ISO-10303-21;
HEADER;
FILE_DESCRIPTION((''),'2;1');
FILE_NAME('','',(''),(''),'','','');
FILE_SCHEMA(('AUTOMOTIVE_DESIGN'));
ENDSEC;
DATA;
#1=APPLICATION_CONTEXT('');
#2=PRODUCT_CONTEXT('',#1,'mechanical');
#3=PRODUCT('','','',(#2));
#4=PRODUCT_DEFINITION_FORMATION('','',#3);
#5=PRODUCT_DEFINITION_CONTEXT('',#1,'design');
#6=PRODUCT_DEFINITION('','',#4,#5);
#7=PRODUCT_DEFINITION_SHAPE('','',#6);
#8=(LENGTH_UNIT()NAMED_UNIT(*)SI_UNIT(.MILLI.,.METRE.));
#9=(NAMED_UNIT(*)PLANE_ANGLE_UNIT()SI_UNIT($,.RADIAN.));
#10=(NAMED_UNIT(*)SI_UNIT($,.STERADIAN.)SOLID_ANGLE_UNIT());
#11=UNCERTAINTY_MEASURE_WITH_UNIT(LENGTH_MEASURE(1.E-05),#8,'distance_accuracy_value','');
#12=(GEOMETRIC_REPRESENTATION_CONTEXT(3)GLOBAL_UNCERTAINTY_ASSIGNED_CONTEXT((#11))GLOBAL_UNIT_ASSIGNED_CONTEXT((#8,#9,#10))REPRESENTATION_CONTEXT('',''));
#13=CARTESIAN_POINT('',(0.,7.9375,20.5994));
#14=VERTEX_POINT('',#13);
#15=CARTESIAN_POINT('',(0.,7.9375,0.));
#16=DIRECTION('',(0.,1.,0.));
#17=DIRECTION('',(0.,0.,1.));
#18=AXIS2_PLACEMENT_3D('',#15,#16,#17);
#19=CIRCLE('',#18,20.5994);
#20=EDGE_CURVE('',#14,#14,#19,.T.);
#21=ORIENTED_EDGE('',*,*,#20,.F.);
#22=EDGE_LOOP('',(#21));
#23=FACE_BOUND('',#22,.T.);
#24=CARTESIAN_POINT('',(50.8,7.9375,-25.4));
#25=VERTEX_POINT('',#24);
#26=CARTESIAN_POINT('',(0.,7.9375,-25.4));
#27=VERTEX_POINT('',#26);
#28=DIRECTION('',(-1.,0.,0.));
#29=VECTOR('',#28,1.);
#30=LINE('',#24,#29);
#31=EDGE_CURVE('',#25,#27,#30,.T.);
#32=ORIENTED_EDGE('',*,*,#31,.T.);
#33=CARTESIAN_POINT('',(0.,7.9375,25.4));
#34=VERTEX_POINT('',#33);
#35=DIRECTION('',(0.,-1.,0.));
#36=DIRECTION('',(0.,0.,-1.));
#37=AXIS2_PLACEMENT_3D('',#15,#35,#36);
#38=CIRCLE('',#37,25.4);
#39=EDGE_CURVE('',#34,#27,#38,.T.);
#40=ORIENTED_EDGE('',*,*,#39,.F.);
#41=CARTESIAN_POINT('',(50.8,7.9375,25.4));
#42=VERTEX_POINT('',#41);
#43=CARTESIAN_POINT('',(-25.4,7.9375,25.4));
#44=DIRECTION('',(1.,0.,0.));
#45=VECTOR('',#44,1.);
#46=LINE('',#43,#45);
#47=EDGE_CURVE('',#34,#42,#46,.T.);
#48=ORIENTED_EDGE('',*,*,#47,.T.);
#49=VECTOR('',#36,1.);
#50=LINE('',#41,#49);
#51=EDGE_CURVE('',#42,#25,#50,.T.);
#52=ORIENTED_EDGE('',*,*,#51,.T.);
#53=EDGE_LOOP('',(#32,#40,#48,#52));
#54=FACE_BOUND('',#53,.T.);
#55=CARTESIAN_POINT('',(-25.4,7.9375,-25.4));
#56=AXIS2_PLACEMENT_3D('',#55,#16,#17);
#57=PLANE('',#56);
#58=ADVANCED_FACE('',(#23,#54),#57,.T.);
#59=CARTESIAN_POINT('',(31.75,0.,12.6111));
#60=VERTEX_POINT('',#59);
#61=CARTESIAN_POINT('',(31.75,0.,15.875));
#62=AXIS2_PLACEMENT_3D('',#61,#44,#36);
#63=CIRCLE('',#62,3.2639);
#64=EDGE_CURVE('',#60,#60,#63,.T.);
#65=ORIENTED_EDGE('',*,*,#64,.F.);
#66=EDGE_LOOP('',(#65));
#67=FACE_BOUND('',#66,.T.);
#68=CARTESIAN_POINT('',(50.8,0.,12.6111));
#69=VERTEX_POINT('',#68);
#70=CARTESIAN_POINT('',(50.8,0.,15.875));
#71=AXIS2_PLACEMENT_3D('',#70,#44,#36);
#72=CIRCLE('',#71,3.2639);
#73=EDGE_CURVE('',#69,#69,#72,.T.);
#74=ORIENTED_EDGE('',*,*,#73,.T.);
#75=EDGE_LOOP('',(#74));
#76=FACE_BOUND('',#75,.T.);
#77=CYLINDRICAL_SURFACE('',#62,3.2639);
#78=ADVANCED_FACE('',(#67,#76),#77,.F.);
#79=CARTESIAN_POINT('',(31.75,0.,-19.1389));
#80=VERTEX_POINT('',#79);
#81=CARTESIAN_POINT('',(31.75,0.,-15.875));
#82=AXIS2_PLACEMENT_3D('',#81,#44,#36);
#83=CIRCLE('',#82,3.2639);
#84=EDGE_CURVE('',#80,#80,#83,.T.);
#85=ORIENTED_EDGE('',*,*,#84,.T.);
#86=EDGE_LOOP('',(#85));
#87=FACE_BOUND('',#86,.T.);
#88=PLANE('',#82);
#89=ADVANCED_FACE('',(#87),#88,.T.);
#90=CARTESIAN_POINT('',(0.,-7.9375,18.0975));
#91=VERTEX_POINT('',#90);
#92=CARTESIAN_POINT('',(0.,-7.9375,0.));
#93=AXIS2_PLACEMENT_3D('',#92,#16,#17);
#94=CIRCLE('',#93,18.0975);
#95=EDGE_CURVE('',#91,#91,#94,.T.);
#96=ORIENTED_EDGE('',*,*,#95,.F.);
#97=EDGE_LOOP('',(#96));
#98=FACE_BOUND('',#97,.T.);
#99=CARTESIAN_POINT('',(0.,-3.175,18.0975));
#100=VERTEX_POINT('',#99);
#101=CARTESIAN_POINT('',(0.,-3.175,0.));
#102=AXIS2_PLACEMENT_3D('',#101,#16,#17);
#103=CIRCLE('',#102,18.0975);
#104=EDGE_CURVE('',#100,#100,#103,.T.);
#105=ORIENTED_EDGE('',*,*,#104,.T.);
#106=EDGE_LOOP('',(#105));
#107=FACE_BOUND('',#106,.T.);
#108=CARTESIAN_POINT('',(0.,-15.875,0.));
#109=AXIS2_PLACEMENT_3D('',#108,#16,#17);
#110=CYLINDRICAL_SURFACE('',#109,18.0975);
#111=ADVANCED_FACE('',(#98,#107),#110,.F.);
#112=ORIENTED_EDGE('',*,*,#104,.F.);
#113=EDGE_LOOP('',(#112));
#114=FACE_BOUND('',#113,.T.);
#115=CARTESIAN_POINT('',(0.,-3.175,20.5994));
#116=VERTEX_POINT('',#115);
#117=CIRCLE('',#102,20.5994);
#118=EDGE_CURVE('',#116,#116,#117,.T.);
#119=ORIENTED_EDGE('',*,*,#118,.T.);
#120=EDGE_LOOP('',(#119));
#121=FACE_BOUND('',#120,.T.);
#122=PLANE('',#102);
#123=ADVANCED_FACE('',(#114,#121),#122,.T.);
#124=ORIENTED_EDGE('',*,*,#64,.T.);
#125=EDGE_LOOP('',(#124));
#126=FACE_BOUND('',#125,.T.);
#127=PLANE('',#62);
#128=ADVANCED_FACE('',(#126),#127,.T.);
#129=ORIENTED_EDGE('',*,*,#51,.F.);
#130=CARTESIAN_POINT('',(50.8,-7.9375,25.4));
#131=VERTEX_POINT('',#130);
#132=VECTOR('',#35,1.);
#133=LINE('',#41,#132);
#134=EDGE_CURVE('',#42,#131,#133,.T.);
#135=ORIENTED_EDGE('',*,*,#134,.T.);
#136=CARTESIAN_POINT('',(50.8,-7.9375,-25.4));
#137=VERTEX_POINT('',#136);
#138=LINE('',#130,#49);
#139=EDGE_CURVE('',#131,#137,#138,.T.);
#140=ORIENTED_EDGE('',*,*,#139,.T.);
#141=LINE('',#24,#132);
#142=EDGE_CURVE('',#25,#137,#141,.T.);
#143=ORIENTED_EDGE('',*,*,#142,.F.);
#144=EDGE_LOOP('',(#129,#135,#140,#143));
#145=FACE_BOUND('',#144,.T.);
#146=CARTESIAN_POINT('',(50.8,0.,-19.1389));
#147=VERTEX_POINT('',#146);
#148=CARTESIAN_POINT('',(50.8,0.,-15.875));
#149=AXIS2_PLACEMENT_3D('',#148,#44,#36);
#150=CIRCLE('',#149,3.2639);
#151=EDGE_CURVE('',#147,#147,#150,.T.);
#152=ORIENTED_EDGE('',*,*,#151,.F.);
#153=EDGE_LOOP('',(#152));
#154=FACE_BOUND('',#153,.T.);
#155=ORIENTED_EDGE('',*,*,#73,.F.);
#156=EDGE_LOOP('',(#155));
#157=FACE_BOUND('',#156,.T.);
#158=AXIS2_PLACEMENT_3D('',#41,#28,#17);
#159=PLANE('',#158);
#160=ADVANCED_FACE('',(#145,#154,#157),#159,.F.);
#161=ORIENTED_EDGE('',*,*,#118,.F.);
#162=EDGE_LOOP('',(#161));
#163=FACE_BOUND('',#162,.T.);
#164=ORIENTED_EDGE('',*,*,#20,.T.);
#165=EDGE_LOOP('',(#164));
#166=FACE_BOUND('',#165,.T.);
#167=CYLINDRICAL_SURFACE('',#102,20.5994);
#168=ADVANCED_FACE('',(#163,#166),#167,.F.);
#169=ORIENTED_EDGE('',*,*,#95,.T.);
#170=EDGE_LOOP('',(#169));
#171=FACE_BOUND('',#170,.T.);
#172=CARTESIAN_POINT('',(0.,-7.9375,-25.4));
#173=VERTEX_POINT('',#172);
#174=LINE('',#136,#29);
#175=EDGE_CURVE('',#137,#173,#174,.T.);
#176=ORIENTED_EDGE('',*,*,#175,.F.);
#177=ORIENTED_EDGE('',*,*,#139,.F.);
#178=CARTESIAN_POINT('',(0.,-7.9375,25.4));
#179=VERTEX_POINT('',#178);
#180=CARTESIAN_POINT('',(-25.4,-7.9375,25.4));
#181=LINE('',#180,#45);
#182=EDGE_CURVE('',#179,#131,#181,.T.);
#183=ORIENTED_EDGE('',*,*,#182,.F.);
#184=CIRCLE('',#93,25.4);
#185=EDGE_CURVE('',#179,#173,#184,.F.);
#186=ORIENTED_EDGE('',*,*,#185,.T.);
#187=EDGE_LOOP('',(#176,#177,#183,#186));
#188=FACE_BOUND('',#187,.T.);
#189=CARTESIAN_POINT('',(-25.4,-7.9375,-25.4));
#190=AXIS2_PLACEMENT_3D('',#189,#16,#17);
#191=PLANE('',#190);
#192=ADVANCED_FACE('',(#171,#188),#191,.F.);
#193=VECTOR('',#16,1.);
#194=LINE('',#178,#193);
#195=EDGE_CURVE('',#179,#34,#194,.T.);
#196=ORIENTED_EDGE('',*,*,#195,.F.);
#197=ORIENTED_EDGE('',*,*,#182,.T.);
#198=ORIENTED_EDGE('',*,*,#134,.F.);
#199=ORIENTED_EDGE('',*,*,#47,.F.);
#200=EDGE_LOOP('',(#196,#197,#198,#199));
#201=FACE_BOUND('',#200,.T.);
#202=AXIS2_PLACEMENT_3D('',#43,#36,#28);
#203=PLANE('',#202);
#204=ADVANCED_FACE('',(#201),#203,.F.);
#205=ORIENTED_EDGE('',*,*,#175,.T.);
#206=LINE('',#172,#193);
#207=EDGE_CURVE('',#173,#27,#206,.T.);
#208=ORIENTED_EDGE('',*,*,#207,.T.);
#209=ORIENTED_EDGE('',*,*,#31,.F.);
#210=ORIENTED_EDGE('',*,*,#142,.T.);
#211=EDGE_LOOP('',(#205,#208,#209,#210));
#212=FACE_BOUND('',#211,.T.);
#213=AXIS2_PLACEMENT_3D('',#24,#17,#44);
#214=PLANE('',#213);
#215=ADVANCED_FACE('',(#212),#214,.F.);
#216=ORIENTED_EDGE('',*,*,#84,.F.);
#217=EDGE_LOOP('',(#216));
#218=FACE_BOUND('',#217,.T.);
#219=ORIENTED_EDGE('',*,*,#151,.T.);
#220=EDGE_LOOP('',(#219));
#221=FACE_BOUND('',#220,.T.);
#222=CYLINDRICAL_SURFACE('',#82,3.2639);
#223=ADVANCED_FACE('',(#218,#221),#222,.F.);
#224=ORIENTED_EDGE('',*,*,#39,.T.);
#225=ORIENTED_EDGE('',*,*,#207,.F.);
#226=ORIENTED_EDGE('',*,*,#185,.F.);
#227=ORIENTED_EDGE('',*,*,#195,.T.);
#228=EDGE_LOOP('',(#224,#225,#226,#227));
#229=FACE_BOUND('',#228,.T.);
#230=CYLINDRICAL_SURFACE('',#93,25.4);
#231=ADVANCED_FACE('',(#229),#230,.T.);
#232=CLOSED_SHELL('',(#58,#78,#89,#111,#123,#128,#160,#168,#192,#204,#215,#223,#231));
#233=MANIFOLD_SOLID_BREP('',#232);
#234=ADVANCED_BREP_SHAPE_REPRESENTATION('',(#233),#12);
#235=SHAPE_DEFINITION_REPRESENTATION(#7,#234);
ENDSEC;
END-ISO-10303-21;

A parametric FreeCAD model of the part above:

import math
import FreeCAD as App
import Part
import Sketcher
Q = App.Units.Quantity

doc = App.newDocument("Part")
body = doc.addObject("PartDesign::Body", "Body")

# Sketch on XZ plane
sketch1 = doc.addObject("Sketcher::SketchObject", "Sketch")
body.addObject(sketch1)
sketch1.AttachmentSupport = (doc.XZ_Plane, [""])
sketch1.MapMode = "FlatFace"
sketch1.addGeometry([
    Part.LineSegment(App.Vector(-25, -25, 0), App.Vector(-25, 25, 0)),
    Part.LineSegment(App.Vector(-25, 25, 0), App.Vector(51, 25, 0)),
    Part.LineSegment(App.Vector(51, 25, 0), App.Vector(51, -25, 0)),
    Part.LineSegment(App.Vector(51, -25, 0), App.Vector(-25, -25, 0)),
], False)
sketch1.addConstraint([
    Sketcher.Constraint("Coincident", 0, 2, 1, 1),
    Sketcher.Constraint("Coincident", 1, 2, 2, 1),
    Sketcher.Constraint("Coincident", 2, 2, 3, 1),
    Sketcher.Constraint("Coincident", 3, 2, 0, 1),
    Sketcher.Constraint("Vertical", 0),
    Sketcher.Constraint("Horizontal", 1),
    Sketcher.Constraint("Vertical", 2),
    Sketcher.Constraint("Horizontal", 3),
    Sketcher.Constraint("DistanceX", 1, 1, 1, 2, Q("3 in")),
    Sketcher.Constraint("DistanceY", 0, 1, 0, 2, Q("2 in")),
    Sketcher.Constraint("DistanceX", 0, 2, -1, 1, Q("1 in")),
    Sketcher.Constraint("DistanceY", -1, 1, 0, 2, Q("1 in")),
])
pad1 = doc.addObject("PartDesign::Pad", "Pad")
body.addObject(pad1)
pad1.Profile = sketch1
pad1.Length = Q("0.625 in")
pad1.Midplane = True

# Sketch on XZ plane
sketch2 = doc.addObject("Sketcher::SketchObject", "Sketch001")
body.addObject(sketch2)
sketch2.AttachmentSupport = (doc.XZ_Plane, [""])
sketch2.MapMode = "FlatFace"
sketch2.AttachmentOffset = App.Placement(App.Vector(0, 0, -0.3125 * 25.4), App.Rotation())
sketch2.addGeometry(Part.Circle(App.Vector(0, 0, 0), App.Vector(0, 0, 1), 21), False)
sketch2.addConstraint([
    Sketcher.Constraint("Coincident", 0, 3, -1, 1),
    Sketcher.Constraint("Diameter", 0, Q("1.622 in")),
])
pocket1 = doc.addObject("PartDesign::Pocket", "Pocket")
body.addObject(pocket1)
pocket1.Profile = sketch2
pocket1.Length = Q("0.4375 in")
pocket1.Reversed = True

# Sketch on XZ plane
sketch3 = doc.addObject("Sketcher::SketchObject", "Sketch002")
body.addObject(sketch3)
sketch3.AttachmentSupport = (doc.XZ_Plane, [""])
sketch3.MapMode = "FlatFace"
sketch3.AttachmentOffset = App.Placement(App.Vector(0, 0, 0.125 * 25.4), App.Rotation())
sketch3.addGeometry(Part.Circle(App.Vector(0, 0, 0), App.Vector(0, 0, 1), 18), False)
sketch3.addConstraint([
    Sketcher.Constraint("Coincident", 0, 3, -1, 1),
    Sketcher.Constraint("Diameter", 0, Q("1.425 in")),
])
pocket2 = doc.addObject("PartDesign::Pocket", "Pocket001")
body.addObject(pocket2)
pocket2.Profile = sketch3
pocket2.Length = Q("0.5 in")
pocket2.Reversed = True

# Sketch on YZ plane
sketch4 = doc.addObject("Sketcher::SketchObject", "Sketch003")
body.addObject(sketch4)
sketch4.AttachmentSupport = (doc.YZ_Plane, [""])
sketch4.MapMode = "FlatFace"
sketch4.AttachmentOffset = App.Placement(App.Vector(0, 0, 2 * 25.4), App.Rotation())
sketch4.addGeometry([
    Part.Circle(App.Vector(0, 15.9, 0), App.Vector(0, 0, 1), 3.3),
    Part.Circle(App.Vector(0, -15.9, 0), App.Vector(0, 0, 1), 3.3),
], False)
sketch4.addConstraint([
    Sketcher.Constraint("Equal", 0, 1),
    Sketcher.Constraint("Symmetric", 0, 3, 1, 3, -1, 1),
    Sketcher.Constraint("PointOnObject", 0, 3, -2),
    Sketcher.Constraint("Diameter", 0, Q("0.257 in")),
    Sketcher.Constraint("DistanceY", 1, 3, 0, 3, Q("1.25 in")),
])
pocket3 = doc.addObject("PartDesign::Pocket", "Pocket002")
body.addObject(pocket3)
pocket3.Profile = sketch4
pocket3.Length = Q("0.75 in")

# Sketch on XZ plane
sketch5 = doc.addObject("Sketcher::SketchObject", "Sketch004")
body.addObject(sketch5)
sketch5.AttachmentSupport = (doc.XZ_Plane, [""])
sketch5.MapMode = "FlatFace"
sketch5.AttachmentOffset = App.Placement(App.Vector(0, 0, -0.3125 * 25.4), App.Rotation())
sketch5.addGeometry([
    Part.LineSegment(App.Vector(0, 38, 0), App.Vector(0, 25, 0)),  # 0
    Part.ArcOfCircle(Part.Circle(App.Vector(0, 0, 0), App.Vector(0, 0, 1), 25), math.radians(90), math.radians(270)),  # 1
    Part.LineSegment(App.Vector(0, -25, 0), App.Vector(0, -38, 0)),  # 2
    Part.LineSegment(App.Vector(0, -38, 0), App.Vector(-51, -38, 0)),  # 3
    Part.LineSegment(App.Vector(-51, -38, 0), App.Vector(-51, 38, 0)),  # 4
    Part.LineSegment(App.Vector(-51, 38, 0), App.Vector(0, 38, 0)),  # 5
], False)
sketch5.addConstraint([
    Sketcher.Constraint("Coincident", 0, 2, 1, 1),
    Sketcher.Constraint("Coincident", 1, 2, 2, 1),
    Sketcher.Constraint("Coincident", 2, 2, 3, 1),
    Sketcher.Constraint("Coincident", 3, 2, 4, 1),
    Sketcher.Constraint("Coincident", 4, 2, 5, 1),
    Sketcher.Constraint("Coincident", 5, 2, 0, 1),
    Sketcher.Constraint("Vertical", 0),
    Sketcher.Constraint("Vertical", 2),
    Sketcher.Constraint("Horizontal", 3),
    Sketcher.Constraint("Vertical", 4),
    Sketcher.Constraint("Horizontal", 5),
    Sketcher.Constraint("Coincident", 1, 3, -1, 1),
    Sketcher.Constraint("Symmetric", 2, 2, 5, 2, -1, 1),
    Sketcher.Constraint("PointOnObject", 0, 2, -2),
    Sketcher.Constraint("Radius", 1, Q("1 in")),
    Sketcher.Constraint("DistanceX", 3, 2, 3, 1, Q("2 in")),
    Sketcher.Constraint("DistanceY", 4, 1, 4, 2, Q("3 in")),
])
pocket4 = doc.addObject("PartDesign::Pocket", "Pocket003")
body.addObject(pocket4)
pocket4.Profile = sketch5
pocket4.Type = "ThroughAll"
pocket4.Reversed = True

doc.recompute()
